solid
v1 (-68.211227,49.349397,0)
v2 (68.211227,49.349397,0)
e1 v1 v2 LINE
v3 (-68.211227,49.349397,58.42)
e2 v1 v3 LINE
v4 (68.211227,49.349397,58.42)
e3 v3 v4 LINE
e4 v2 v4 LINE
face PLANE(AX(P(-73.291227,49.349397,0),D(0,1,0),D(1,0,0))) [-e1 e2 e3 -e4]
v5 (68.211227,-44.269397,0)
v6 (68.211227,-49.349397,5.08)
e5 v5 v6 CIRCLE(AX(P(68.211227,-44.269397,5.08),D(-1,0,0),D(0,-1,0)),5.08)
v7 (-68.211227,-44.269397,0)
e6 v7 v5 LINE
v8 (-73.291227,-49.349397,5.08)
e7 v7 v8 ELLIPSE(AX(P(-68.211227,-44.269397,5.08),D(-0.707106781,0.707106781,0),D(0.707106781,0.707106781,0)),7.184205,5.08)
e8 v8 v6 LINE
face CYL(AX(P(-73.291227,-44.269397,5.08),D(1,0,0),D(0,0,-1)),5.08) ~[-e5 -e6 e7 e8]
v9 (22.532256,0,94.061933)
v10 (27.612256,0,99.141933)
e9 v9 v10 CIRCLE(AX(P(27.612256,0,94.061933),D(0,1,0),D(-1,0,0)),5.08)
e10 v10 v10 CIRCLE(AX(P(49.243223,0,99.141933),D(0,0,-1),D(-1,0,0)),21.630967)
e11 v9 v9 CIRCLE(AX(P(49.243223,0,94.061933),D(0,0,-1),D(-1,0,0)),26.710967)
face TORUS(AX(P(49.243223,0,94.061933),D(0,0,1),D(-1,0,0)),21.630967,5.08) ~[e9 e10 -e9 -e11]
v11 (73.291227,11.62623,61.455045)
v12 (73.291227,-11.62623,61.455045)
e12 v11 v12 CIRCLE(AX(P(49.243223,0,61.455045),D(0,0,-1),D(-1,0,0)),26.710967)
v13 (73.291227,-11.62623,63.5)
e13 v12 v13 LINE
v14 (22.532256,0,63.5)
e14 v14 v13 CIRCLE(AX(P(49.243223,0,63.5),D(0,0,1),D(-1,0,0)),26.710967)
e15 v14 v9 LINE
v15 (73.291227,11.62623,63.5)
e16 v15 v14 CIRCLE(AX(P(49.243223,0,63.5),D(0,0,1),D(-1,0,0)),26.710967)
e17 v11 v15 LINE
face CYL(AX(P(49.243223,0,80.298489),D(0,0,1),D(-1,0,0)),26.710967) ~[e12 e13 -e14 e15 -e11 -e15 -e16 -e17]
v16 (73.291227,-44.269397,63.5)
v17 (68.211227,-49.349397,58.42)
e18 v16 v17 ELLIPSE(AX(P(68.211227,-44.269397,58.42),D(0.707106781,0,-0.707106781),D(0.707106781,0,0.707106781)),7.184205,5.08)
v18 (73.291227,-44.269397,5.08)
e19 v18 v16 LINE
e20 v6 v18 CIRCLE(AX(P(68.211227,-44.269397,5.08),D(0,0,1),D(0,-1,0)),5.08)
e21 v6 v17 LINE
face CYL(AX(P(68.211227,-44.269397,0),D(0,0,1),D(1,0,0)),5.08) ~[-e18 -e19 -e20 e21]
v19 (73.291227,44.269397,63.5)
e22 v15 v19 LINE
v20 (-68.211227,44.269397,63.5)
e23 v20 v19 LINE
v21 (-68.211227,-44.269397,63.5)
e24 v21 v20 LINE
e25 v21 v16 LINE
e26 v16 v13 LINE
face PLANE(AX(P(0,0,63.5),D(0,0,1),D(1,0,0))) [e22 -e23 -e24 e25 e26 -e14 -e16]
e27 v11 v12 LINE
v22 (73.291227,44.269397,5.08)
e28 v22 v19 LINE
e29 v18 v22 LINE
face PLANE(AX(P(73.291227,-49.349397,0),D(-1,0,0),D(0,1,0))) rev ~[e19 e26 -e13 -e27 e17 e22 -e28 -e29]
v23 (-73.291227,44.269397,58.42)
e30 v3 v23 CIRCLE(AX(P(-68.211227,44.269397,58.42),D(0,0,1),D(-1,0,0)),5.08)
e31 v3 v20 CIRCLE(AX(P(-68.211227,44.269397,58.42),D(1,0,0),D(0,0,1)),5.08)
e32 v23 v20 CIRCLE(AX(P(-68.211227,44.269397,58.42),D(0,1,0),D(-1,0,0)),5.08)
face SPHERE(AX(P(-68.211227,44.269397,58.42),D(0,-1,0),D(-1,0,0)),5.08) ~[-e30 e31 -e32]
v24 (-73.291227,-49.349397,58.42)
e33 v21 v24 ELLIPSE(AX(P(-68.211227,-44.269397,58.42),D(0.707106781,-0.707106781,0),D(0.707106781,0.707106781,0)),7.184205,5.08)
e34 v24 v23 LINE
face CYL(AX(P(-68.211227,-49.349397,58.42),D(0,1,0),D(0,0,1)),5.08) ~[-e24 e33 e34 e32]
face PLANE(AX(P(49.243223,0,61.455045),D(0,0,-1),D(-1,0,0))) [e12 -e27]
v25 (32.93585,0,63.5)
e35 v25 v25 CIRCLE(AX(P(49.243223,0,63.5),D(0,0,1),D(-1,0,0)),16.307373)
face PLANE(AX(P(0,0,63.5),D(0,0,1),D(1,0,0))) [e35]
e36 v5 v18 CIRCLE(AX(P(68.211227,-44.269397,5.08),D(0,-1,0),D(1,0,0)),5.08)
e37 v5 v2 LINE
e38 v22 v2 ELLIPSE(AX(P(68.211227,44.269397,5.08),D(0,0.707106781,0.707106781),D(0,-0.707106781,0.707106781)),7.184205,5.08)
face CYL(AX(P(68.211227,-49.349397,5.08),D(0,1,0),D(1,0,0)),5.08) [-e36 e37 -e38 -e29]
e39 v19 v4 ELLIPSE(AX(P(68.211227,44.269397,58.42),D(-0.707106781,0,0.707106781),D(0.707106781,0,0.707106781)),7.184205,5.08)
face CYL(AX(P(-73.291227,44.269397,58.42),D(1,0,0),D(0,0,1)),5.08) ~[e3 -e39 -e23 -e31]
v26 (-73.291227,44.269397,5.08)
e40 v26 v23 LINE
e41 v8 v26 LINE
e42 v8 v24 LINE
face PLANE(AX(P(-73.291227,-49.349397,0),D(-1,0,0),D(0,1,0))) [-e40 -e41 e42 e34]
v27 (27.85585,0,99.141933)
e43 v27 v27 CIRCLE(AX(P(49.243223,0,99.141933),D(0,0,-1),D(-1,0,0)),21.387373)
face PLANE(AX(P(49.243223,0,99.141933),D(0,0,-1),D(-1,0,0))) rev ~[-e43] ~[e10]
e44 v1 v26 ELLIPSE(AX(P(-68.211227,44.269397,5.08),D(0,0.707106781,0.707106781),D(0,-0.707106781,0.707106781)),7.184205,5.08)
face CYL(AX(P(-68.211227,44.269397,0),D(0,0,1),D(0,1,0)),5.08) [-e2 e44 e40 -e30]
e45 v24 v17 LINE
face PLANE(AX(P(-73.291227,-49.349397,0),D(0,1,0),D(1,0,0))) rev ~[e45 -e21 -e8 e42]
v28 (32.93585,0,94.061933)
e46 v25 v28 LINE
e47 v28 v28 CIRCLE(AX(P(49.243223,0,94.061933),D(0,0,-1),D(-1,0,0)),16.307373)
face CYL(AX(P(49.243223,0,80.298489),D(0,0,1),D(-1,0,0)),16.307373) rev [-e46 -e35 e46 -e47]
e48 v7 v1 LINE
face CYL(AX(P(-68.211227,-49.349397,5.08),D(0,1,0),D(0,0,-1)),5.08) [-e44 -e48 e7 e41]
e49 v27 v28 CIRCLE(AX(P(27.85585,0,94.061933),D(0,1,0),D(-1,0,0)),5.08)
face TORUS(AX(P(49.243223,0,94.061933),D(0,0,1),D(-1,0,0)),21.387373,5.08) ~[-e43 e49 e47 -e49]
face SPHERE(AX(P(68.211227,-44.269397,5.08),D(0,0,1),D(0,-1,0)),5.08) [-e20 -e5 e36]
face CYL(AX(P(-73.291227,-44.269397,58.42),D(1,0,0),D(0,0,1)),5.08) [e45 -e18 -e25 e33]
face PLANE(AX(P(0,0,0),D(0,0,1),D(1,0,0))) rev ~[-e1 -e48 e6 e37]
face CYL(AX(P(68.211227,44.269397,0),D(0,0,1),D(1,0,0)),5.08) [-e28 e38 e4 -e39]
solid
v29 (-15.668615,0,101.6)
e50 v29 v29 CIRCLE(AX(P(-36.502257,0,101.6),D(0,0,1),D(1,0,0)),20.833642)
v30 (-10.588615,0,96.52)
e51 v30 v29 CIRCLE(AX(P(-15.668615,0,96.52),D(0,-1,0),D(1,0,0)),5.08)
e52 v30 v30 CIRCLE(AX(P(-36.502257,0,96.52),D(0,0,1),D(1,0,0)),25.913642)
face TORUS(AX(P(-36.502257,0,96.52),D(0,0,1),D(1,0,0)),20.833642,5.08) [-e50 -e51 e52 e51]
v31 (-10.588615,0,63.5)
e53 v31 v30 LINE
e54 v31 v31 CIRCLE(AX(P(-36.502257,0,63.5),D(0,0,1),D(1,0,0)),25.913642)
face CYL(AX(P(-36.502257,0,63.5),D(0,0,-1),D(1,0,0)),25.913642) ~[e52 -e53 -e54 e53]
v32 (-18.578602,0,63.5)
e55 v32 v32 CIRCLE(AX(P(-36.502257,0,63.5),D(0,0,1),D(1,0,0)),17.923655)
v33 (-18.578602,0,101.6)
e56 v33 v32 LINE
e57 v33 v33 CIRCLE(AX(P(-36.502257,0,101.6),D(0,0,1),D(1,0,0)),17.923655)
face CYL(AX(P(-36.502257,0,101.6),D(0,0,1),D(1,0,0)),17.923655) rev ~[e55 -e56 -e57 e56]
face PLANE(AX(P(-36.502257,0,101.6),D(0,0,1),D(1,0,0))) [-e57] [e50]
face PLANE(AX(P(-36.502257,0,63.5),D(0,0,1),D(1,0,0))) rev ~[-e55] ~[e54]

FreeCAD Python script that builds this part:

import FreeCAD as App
import Part
import Sketcher


def edges_at(feature, points):
    """Names of the edges that pass closest to the given points."""
    edges = feature.Shape.Edges
    near = lambda p: min(range(len(edges)), key=lambda i: edges[i].distToShape(Part.Vertex(*p))[0])
    return sorted({f"Edge{near(p) + 1}" for p in points})


def add_polygon(sketch, points):
    """Adds a closed chain of lines whose ends are joined by coincident constraints."""
    first, n = sketch.GeometryCount, len(points)
    for a, b in zip(points, points[1:] + points[:1]):
        sketch.addGeometry(Part.LineSegment(App.Vector(*a, 0), App.Vector(*b, 0)), False)
    for i in range(n):
        sketch.addConstraint(Sketcher.Constraint("Coincident", first + i, 2, first + (i + 1) % n, 1))

doc = App.newDocument("Part")
params = doc.addObject("Spreadsheet::Sheet", "Params")
for row, (alias, value) in enumerate([
    ("pad1_length", "2.5 in"),
    ("revolution_angle", "360 deg"),
    ("fillet_radius", "0.2 in"),
    ("pad2_length", "1.5 in"),
    ("fillet2_radius", "0.2 in"),
], start=1):
    params.set(f"A{row}", alias)
    params.set(f"B{row}", "=" + value)
    params.setAlias(f"B{row}", alias)

body = doc.addObject("PartDesign::Body", "Body")

sketch1 = body.newObject("Sketcher::SketchObject", "Sketch")
sketch1.AttachmentSupport = (doc.getObject("XY_Plane"), [""])
sketch1.MapMode = "FlatFace"
add_polygon(sketch1, [(-73, 49), (-73, -49), (73, -49), (73, 49)])
sketch1.addConstraint(Sketcher.Constraint("Vertical", 0))
sketch1.addConstraint(Sketcher.Constraint("Horizontal", 1))
sketch1.addConstraint(Sketcher.Constraint("Vertical", 2))
sketch1.addConstraint(Sketcher.Constraint("Horizontal", 3))
sketch1.addConstraint(Sketcher.Constraint("Symmetric", 0, 2, 2, 2, -1, 1))
sketch1.addConstraint(Sketcher.Constraint("DistanceX", 1, 1, 1, 2, 146.582454))
sketch1.addConstraint(Sketcher.Constraint("DistanceY", 0, 2, 0, 1, 98.698795))
pad1 = body.newObject("PartDesign::Pad", "Pad")
pad1.Profile = sketch1
pad1.setExpression("Length", "Params.pad1_length")

sketch2 = body.newObject("Sketcher::SketchObject", "Sketch001")
sketch2.AttachmentSupport = (doc.getObject("XZ_Plane"), [""])
sketch2.MapMode = "FlatFace"
add_polygon(sketch2, [(23, 99), (23, 61), (33, 61), (33, 99)])
sketch2.addGeometry(Part.LineSegment(App.Vector(49, 99, 0), App.Vector(49, 61, 0)), True)
sketch2.addConstraint(Sketcher.Constraint("Vertical", 0))
sketch2.addConstraint(Sketcher.Constraint("Horizontal", 1))
sketch2.addConstraint(Sketcher.Constraint("Vertical", 2))
sketch2.addConstraint(Sketcher.Constraint("Horizontal", 3))
sketch2.addConstraint(Sketcher.Constraint("Vertical", 4))
sketch2.addConstraint(Sketcher.Constraint("Horizontal", 3, 2, 4, 1))
sketch2.addConstraint(Sketcher.Constraint("Horizontal", 1, 2, 4, 2))
sketch2.addConstraint(Sketcher.Constraint("DistanceY", 0, 2, 0, 1, 37.686888))
sketch2.addConstraint(Sketcher.Constraint("DistanceX", 1, 1, 1, 2, 10.403594))
sketch2.addConstraint(Sketcher.Constraint("DistanceX", -1, 1, 1, 2, 32.93585))
sketch2.addConstraint(Sketcher.Constraint("DistanceY", -1, 1, 0, 2, 61.455045))
sketch2.addConstraint(Sketcher.Constraint("DistanceX", -1, 1, 4, 1, 49.243223))
revolution = body.newObject("PartDesign::Revolution", "Revolution")
revolution.Profile = sketch2
revolution.ReferenceAxis = (sketch2, ["Axis0"])
revolution.setExpression("Angle", "Params.revolution_angle")
doc.recompute()

fillet = body.newObject("PartDesign::Fillet", "Fillet")
fillet.Base = (revolution, edges_at(revolution, [
    (75.954, 0, 99.142),
    (65.551, 0, 99.142),
    (0, -49.349, 63.5),
    (73.291, -49.349, 31.75),
    (0, -49.349, 0),
    (73.291, 49.349, 31.75),
    (73.291, 0, 0),
    (-73.291, 0, 63.5),
    (-73.291, 49.349, 31.75),
    (0, 49.349, 63.5),
    (-73.291, 0, 0),
]))
fillet.setExpression("Radius", "Params.fillet_radius")
body2 = doc.addObject("PartDesign::Body", "Body001")

sketch3 = body2.newObject("Sketcher::SketchObject", "Sketch002")
sketch3.AttachmentSupport = (doc.getObject("XY_Plane001"), [""])
sketch3.MapMode = "FlatFace"
sketch3.AttachmentOffset = App.Placement(App.Vector(0, 0, 2.5 * 25.4), App.Rotation())
sketch3.addGeometry(Part.Circle(App.Vector(-37, 0, 0), App.Vector(0, 0, 1), 26), False)
sketch3.addConstraint(Sketcher.Constraint("PointOnObject", 0, 3, -1))
sketch3.addConstraint(Sketcher.Constraint("Diameter", 0, 51.827285))
sketch3.addConstraint(Sketcher.Constraint("DistanceX", 0, 3, -1, 1, 36.502257))
pad2 = body2.newObject("PartDesign::Pad", "Pad001")
pad2.Profile = sketch3
pad2.setExpression("Length", "Params.pad2_length")

sketch4 = body2.newObject("Sketcher::SketchObject", "Sketch003")
sketch4.AttachmentSupport = (doc.getObject("XY_Plane001"), [""])
sketch4.MapMode = "FlatFace"
sketch4.AttachmentOffset = App.Placement(App.Vector(0, 0, 4 * 25.4), App.Rotation())
sketch4.addGeometry(Part.Circle(App.Vector(-37, 0, 0), App.Vector(0, 0, 1), 18), False)
sketch4.addConstraint(Sketcher.Constraint("PointOnObject", 0, 3, -1))
sketch4.addConstraint(Sketcher.Constraint("Diameter", 0, 35.847309))
sketch4.addConstraint(Sketcher.Constraint("DistanceX", 0, 3, -1, 1, 36.502257))
pocket1 = body2.newObject("PartDesign::Pocket", "Pocket")
pocket1.Profile = sketch4
pocket1.Type = "ThroughAll"
doc.recompute()

fillet2 = body2.newObject("PartDesign::Fillet", "Fillet001")
fillet2.Base = (pocket1, edges_at(pocket1, [(-62.416, 0, 101.6)]))
fillet2.setExpression("Radius", "Params.fillet2_radius")

doc.recompute()
